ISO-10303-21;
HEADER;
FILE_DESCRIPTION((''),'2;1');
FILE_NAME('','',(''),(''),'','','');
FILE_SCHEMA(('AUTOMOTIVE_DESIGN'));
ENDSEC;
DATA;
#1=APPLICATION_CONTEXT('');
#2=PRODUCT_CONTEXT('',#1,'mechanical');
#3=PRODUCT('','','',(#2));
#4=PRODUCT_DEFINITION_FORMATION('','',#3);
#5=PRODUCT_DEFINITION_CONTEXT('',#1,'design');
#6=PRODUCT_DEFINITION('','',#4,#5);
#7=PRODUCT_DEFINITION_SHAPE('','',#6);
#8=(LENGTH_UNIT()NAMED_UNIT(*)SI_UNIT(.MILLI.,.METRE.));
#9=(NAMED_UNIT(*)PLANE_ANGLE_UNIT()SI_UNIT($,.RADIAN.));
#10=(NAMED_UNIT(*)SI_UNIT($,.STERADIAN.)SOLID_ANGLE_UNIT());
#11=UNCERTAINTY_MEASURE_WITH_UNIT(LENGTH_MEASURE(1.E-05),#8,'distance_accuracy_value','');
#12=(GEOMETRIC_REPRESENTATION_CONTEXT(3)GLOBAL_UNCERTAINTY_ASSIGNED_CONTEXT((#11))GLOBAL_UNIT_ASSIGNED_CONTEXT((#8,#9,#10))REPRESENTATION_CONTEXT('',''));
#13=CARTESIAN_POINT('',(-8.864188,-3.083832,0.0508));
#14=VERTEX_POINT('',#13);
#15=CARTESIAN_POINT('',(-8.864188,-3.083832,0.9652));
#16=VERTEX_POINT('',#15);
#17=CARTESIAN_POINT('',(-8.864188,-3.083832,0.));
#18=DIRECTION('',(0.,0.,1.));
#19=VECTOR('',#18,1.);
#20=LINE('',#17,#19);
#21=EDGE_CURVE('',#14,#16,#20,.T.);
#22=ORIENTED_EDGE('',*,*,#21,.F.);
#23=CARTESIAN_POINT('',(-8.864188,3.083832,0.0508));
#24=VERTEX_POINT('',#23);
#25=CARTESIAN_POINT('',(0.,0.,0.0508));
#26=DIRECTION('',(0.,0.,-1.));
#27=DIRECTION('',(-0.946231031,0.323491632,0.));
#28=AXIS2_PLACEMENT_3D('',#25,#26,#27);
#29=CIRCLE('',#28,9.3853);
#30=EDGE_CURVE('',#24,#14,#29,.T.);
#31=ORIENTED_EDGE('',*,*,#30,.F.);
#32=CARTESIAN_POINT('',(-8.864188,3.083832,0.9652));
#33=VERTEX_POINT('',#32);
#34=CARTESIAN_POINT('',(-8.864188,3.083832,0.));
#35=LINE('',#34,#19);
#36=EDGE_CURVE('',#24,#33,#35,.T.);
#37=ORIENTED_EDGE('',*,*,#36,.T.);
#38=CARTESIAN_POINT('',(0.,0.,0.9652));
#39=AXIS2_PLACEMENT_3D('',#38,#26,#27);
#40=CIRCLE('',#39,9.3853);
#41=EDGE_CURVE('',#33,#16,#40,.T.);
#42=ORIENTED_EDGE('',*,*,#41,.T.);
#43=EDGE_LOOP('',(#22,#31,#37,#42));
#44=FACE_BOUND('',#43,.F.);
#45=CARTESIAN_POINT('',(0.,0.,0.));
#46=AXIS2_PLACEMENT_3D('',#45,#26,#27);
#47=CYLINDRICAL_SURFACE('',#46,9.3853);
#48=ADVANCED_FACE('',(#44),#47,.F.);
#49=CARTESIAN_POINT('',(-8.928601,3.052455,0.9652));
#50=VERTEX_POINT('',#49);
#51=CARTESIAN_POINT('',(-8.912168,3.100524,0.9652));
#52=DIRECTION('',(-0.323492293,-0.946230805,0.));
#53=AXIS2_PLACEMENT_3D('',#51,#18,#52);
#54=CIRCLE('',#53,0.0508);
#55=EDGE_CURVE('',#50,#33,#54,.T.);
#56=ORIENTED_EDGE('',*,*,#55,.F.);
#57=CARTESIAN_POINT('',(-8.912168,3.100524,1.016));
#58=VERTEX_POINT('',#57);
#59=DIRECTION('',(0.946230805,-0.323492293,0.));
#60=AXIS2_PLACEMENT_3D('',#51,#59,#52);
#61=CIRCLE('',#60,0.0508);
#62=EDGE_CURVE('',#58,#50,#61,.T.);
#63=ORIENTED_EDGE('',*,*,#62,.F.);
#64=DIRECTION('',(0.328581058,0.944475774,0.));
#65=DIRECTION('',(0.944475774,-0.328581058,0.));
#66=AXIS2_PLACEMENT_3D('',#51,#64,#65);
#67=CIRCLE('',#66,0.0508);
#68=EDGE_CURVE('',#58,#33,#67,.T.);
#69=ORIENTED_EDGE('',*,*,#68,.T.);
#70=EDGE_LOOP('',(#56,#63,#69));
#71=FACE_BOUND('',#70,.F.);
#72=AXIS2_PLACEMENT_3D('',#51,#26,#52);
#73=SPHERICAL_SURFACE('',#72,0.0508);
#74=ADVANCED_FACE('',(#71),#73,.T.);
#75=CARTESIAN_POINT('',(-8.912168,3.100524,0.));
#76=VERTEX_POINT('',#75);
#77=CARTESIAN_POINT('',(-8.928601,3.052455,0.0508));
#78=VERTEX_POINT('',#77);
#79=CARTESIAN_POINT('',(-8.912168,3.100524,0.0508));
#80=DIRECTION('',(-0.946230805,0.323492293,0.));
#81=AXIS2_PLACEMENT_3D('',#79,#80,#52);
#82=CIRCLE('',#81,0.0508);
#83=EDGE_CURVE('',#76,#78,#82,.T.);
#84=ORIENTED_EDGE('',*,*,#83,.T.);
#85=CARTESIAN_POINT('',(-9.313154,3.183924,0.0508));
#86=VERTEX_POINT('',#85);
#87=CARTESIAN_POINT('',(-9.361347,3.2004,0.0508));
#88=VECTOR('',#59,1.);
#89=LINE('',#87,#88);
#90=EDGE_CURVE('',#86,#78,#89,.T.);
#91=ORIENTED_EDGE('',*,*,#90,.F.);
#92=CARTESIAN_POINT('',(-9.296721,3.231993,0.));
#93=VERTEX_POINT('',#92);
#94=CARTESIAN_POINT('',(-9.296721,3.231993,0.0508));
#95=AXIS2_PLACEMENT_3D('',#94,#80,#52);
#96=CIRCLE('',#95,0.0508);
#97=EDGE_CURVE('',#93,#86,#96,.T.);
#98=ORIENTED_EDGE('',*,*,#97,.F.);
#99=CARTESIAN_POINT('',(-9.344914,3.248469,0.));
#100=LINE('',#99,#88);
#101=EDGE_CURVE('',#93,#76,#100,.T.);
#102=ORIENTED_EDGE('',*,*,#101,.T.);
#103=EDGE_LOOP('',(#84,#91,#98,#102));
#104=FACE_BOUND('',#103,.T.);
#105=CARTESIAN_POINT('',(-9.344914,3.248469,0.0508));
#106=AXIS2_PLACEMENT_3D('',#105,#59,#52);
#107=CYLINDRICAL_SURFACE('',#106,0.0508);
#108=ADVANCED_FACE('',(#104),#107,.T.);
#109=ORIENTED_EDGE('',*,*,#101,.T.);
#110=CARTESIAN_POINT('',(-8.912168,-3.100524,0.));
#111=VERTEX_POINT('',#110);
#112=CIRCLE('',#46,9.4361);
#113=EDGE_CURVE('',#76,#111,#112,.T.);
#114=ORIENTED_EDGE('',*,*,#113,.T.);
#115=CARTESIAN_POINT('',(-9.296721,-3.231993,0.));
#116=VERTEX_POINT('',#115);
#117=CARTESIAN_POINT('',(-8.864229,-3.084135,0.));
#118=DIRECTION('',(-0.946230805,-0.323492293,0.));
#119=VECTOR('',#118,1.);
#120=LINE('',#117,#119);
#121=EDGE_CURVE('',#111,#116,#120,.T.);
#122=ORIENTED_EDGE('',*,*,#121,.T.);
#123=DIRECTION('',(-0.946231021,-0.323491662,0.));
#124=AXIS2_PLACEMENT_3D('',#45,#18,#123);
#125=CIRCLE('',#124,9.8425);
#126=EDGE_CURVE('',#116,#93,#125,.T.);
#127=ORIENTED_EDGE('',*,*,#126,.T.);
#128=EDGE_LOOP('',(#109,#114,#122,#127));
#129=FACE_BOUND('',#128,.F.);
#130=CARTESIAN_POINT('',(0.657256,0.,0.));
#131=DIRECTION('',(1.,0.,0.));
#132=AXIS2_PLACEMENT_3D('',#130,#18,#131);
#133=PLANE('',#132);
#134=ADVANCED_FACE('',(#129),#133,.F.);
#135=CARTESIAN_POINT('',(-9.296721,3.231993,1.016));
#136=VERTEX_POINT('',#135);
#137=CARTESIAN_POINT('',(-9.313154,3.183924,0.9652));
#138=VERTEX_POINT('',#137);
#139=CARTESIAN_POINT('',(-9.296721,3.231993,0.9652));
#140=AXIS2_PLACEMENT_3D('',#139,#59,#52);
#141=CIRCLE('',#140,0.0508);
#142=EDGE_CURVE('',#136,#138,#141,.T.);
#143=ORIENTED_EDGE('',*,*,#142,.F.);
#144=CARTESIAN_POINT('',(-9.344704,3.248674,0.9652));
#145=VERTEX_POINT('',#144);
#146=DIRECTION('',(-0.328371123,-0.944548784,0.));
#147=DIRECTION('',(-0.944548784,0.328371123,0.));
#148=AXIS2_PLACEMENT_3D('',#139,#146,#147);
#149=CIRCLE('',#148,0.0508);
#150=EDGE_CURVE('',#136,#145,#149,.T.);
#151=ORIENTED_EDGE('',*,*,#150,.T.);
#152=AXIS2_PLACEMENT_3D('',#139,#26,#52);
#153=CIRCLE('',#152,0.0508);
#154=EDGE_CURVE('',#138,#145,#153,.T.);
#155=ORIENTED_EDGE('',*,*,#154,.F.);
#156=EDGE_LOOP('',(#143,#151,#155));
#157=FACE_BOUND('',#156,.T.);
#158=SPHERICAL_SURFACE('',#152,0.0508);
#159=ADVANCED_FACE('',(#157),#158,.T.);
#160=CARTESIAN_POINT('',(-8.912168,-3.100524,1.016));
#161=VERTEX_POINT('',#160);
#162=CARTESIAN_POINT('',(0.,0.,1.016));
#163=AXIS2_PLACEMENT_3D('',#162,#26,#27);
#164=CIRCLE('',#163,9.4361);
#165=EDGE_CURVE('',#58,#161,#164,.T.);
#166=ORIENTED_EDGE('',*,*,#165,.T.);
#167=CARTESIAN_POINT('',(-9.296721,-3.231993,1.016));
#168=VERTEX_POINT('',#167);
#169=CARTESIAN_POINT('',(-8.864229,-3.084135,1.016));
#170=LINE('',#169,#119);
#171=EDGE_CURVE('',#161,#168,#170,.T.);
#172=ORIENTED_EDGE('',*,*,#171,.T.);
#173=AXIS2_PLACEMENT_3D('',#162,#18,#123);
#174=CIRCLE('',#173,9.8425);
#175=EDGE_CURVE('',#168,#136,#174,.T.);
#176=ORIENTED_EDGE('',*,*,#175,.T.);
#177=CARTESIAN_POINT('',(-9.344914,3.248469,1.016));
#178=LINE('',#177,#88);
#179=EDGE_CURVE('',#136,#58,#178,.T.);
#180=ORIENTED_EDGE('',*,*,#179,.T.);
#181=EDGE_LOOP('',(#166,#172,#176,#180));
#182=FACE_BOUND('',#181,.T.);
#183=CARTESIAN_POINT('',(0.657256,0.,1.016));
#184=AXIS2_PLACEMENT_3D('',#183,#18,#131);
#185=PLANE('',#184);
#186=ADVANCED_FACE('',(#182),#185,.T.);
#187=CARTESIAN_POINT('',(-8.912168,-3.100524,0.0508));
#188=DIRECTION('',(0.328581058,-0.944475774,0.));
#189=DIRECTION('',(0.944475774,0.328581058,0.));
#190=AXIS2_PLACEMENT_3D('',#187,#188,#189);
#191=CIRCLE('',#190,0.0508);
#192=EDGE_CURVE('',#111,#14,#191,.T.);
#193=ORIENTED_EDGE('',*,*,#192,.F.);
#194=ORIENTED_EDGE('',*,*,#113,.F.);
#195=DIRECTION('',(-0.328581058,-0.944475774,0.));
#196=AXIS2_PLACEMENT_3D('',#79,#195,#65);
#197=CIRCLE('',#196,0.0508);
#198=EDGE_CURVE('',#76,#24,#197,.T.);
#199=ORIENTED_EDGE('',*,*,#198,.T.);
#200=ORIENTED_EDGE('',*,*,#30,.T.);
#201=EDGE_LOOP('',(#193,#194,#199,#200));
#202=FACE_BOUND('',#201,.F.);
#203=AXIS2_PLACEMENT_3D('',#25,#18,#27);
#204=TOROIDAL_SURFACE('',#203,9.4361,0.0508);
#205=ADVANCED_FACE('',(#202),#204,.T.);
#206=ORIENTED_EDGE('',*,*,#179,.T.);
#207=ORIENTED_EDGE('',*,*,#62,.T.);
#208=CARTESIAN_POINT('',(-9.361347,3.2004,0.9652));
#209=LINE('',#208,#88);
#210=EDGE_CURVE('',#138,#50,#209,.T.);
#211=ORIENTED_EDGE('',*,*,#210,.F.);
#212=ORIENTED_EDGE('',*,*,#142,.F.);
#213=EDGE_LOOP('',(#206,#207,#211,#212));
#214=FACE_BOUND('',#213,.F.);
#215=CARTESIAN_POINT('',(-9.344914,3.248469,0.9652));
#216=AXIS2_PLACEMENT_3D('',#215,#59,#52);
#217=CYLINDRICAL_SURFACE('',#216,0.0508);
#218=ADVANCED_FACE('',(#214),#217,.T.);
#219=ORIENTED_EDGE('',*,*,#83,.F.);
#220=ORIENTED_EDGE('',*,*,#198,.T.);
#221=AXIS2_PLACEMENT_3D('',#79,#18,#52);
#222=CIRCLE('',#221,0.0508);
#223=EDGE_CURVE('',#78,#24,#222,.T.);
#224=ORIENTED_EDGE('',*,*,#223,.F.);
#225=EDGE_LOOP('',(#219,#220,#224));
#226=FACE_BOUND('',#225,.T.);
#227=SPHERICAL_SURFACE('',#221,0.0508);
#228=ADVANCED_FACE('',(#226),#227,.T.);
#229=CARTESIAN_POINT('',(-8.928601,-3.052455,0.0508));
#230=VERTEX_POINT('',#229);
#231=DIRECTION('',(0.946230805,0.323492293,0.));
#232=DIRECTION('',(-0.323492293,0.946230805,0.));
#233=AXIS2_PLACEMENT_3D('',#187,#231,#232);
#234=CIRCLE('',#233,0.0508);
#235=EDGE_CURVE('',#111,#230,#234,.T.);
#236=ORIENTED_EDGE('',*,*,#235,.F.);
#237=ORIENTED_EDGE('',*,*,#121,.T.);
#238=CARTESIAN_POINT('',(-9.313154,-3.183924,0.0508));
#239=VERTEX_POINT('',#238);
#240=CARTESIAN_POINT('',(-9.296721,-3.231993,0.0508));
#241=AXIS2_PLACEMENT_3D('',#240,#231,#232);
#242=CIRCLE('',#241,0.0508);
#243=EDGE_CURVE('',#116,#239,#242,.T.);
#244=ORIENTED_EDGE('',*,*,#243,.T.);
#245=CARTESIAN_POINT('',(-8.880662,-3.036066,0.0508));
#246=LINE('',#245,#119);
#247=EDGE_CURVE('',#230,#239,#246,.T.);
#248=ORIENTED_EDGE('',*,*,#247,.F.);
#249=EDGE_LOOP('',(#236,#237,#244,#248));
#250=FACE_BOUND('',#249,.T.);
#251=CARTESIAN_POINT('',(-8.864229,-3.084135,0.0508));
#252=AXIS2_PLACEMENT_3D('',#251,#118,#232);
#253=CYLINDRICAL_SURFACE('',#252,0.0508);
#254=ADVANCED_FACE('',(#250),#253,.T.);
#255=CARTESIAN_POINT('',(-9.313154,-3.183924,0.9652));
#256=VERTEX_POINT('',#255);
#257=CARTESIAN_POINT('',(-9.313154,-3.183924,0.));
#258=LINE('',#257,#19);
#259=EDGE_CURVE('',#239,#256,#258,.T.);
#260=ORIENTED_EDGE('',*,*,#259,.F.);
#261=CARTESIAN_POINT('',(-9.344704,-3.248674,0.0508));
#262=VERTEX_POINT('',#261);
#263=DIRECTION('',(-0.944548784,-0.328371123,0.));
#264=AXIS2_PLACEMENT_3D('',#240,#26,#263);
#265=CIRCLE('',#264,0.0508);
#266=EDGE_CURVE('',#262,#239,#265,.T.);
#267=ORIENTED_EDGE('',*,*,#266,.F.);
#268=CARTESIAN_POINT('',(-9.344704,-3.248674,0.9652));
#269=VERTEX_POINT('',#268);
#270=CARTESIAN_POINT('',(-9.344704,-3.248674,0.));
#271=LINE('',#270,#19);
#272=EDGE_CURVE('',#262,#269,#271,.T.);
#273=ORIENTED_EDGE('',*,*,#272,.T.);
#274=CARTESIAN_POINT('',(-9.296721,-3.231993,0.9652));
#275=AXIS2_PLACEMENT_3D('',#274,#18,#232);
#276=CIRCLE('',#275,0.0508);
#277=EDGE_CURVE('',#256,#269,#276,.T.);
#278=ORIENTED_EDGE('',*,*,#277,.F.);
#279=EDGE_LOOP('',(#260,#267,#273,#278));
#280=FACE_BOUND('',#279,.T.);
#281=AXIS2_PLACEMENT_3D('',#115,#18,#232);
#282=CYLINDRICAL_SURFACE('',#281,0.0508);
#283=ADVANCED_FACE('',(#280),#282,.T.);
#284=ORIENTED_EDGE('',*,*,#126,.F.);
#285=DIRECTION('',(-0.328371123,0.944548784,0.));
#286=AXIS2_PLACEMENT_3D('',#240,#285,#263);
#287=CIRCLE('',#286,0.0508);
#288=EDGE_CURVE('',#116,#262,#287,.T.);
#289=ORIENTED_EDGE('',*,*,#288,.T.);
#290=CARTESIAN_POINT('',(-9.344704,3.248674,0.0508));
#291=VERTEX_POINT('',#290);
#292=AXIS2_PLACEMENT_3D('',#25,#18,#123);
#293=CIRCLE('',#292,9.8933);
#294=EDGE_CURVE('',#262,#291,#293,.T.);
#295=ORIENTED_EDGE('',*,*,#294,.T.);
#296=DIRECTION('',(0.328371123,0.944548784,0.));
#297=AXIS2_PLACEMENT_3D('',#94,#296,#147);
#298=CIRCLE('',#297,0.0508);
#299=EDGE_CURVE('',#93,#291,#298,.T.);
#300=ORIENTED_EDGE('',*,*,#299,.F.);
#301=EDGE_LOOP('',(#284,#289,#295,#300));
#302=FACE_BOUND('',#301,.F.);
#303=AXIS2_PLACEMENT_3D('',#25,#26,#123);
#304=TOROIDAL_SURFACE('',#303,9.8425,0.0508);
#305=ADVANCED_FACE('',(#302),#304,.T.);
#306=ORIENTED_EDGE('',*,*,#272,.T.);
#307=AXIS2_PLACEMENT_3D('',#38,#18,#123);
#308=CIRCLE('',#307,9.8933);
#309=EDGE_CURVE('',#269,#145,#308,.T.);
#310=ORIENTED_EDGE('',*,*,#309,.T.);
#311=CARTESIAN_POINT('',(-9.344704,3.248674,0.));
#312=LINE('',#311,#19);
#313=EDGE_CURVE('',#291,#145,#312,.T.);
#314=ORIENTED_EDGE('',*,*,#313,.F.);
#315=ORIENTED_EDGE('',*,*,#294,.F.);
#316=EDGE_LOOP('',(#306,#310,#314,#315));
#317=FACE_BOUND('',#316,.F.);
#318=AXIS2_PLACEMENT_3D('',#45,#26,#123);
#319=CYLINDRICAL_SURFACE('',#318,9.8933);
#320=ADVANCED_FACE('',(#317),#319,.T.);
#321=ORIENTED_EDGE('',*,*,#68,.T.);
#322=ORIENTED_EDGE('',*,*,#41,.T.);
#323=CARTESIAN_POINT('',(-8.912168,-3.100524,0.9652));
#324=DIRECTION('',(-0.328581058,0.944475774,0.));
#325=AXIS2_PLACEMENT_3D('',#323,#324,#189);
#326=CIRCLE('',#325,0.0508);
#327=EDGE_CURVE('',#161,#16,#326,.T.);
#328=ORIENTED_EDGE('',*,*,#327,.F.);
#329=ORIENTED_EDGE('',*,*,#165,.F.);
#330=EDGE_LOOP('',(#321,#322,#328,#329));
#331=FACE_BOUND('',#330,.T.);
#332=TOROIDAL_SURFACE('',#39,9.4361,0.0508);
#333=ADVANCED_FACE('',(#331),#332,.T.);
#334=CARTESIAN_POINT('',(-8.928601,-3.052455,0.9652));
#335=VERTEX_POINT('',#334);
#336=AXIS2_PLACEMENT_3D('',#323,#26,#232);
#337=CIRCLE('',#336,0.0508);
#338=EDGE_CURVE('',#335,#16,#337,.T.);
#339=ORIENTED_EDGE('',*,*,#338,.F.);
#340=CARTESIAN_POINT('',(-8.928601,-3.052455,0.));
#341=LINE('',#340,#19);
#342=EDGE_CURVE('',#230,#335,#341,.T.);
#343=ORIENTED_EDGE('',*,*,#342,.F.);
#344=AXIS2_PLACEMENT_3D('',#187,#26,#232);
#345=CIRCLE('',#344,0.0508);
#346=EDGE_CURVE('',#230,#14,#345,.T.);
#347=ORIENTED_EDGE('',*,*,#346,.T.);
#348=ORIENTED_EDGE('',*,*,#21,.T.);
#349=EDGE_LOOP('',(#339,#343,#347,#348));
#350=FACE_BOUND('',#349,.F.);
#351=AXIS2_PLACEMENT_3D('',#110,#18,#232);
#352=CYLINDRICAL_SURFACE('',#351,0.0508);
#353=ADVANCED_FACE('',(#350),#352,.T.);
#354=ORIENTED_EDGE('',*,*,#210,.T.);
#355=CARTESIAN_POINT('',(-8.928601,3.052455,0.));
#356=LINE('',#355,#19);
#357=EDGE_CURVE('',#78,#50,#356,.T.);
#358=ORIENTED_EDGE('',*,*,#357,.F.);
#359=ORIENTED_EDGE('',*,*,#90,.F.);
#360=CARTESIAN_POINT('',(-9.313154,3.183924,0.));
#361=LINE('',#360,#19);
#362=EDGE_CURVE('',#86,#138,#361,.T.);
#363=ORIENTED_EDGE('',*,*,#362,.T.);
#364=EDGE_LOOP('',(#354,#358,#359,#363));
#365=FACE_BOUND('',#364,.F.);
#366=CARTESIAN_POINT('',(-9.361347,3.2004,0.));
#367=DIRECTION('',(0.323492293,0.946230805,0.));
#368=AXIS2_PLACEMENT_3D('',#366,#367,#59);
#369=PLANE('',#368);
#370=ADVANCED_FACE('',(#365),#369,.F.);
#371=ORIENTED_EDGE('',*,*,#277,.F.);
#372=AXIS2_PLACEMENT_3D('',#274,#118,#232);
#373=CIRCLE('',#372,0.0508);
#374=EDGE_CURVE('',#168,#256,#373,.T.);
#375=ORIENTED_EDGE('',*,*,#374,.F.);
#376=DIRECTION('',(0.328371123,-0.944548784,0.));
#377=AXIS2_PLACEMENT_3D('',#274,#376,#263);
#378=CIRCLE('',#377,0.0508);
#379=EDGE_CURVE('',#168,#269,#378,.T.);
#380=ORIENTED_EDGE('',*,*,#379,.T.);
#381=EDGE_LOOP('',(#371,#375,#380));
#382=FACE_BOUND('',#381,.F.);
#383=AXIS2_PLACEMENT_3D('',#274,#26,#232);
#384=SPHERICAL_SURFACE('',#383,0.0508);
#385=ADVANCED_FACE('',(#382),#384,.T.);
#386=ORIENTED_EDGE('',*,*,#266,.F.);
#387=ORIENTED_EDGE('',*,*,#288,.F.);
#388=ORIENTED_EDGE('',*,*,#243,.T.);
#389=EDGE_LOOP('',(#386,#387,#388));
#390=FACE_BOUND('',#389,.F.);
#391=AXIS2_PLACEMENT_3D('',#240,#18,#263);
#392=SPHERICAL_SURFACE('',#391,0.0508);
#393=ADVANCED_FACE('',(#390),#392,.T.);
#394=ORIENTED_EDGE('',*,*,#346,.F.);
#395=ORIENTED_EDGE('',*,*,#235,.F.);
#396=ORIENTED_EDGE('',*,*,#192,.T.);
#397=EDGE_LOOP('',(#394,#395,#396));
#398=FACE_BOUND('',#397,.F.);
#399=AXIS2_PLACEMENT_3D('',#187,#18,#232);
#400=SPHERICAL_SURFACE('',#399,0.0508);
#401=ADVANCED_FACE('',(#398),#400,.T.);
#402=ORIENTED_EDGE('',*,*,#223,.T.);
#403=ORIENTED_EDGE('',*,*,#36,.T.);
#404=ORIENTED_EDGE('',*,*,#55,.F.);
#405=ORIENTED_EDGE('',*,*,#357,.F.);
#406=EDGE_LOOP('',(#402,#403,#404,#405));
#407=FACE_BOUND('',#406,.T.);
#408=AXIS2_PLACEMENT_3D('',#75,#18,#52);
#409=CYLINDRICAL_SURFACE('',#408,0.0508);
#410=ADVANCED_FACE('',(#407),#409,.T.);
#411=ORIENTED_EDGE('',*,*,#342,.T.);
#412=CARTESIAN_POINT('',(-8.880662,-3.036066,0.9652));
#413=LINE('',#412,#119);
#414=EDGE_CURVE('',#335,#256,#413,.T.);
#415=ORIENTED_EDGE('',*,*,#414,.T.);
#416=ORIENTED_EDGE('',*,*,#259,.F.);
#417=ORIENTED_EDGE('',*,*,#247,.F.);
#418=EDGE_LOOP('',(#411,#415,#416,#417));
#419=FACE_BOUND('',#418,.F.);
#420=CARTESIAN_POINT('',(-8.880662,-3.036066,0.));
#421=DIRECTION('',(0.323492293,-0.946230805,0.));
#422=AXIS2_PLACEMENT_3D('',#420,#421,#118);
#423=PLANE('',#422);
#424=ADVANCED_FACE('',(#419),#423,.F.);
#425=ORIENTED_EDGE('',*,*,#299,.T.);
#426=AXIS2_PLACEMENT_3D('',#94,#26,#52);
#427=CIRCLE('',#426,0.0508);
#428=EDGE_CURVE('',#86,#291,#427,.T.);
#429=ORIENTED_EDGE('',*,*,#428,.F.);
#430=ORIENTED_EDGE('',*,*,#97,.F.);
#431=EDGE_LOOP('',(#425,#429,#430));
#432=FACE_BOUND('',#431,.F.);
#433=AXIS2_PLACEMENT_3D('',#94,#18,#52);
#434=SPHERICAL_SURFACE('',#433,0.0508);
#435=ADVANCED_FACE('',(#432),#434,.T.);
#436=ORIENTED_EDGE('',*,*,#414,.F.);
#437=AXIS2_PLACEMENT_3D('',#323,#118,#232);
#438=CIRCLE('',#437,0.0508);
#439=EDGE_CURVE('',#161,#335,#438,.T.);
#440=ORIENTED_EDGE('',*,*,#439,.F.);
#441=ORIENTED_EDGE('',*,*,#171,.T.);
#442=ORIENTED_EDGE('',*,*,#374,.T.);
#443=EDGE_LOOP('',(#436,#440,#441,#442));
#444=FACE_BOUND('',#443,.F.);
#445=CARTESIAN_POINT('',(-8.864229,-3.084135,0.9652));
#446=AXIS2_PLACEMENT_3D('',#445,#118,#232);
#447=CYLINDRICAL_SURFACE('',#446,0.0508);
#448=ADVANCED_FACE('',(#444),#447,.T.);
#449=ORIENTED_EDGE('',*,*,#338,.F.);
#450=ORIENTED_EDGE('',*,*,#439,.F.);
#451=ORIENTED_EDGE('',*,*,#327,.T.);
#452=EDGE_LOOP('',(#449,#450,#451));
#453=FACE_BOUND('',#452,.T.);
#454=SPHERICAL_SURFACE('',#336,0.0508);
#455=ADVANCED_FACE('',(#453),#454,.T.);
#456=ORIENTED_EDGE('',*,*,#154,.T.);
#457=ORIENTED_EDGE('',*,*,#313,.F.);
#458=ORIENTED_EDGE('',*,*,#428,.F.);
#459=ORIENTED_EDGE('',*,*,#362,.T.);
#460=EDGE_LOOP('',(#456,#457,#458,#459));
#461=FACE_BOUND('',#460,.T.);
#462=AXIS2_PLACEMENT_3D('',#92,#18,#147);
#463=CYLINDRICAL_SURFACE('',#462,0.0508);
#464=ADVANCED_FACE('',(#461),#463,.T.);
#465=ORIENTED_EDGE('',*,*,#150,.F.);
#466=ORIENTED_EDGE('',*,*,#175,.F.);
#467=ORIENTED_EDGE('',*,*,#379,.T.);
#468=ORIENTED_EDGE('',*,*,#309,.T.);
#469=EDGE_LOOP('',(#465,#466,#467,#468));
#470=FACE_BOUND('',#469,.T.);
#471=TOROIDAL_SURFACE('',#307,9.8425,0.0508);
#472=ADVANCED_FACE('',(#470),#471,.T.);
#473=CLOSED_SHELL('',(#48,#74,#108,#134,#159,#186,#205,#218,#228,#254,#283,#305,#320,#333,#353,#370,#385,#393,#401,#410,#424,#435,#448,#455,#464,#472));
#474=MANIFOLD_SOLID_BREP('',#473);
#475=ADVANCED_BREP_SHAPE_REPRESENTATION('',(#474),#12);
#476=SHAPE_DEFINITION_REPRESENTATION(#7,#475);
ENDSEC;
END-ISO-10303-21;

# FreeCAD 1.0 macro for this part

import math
import FreeCAD as App
import Part
import Sketcher
Q = App.Units.Quantity

doc = App.newDocument("Part")
params = doc.addObject("Spreadsheet::Sheet", "Params")
for row, (alias, value) in enumerate([
    ("pad1_length", "0.04 in"),
    ("fillet_radius", "0.002 in"),
], start=1):
    params.set(f"A{row}", alias)
    params.set(f"B{row}", "=" + value)
    params.setAlias(f"B{row}", alias)

body = doc.addObject("PartDesign::Body", "Body")

# Sketch on XY plane
sketch1 = body.newObject("Sketcher::SketchObject", "Sketch")
sketch1.AttachmentSupport = (doc.getObject("XY_Plane"), [""])
sketch1.MapMode = "FlatFace"
sketch1.addGeometry([
    Part.LineSegment(App.Vector(-8.9, -3, 0), App.Vector(-9.4, -3.2, 0)),
    Part.ArcOfCircle(Part.Circle(App.Vector(0, 0, 0), App.Vector(0, 0, 1), 9.9), math.radians(-161), math.radians(161)),
    Part.LineSegment(App.Vector(-9.4, 3.2, 0), App.Vector(-8.9, 3, 0)),
    Part.ArcOfCircle(Part.Circle(App.Vector(0, 0, 0), App.Vector(0, 0, 1), 9.4), math.radians(-161), math.radians(161)),
], False)
sketch1.addConstraint([
    Sketcher.Constraint("Coincident", 0, 2, 1, 1),
    Sketcher.Constraint("Coincident", 1, 2, 2, 1),
    Sketcher.Constraint("Coincident", 2, 2, 3, 2),
    Sketcher.Constraint("Coincident", 3, 1, 0, 1),
    Sketcher.Constraint("Coincident", 1, 3, -1, 1),
    Sketcher.Constraint("Coincident", 3, 3, -1, 1),
    Sketcher.Constraint("Vertical", 0, 2, 1, 2),
    Sketcher.Constraint("Vertical", 2, 2, 3, 1),
    Sketcher.Constraint("Radius", 1, Q("0.3895 in")),
    Sketcher.Constraint("Radius", 3, Q("0.3695 in")),
    Sketcher.Constraint("DistanceY", 0, 2, -1, 1, Q("0.126 in")),
    Sketcher.Constraint("DistanceX", 2, 2, -1, 1, 8.880662),
])
pad1 = body.newObject("PartDesign::Pad", "Pad")
pad1.Profile = sketch1
pad1.setExpression("Length", "Params.pad1_length")
doc.recompute()

fillet = body.newObject("PartDesign::Fillet", "Fillet")
fillet.Base = (pad1, ["Edge1"])
fillet.UseAllEdges = True
fillet.setExpression("Radius", "Params.fillet_radius")

doc.recompute()
